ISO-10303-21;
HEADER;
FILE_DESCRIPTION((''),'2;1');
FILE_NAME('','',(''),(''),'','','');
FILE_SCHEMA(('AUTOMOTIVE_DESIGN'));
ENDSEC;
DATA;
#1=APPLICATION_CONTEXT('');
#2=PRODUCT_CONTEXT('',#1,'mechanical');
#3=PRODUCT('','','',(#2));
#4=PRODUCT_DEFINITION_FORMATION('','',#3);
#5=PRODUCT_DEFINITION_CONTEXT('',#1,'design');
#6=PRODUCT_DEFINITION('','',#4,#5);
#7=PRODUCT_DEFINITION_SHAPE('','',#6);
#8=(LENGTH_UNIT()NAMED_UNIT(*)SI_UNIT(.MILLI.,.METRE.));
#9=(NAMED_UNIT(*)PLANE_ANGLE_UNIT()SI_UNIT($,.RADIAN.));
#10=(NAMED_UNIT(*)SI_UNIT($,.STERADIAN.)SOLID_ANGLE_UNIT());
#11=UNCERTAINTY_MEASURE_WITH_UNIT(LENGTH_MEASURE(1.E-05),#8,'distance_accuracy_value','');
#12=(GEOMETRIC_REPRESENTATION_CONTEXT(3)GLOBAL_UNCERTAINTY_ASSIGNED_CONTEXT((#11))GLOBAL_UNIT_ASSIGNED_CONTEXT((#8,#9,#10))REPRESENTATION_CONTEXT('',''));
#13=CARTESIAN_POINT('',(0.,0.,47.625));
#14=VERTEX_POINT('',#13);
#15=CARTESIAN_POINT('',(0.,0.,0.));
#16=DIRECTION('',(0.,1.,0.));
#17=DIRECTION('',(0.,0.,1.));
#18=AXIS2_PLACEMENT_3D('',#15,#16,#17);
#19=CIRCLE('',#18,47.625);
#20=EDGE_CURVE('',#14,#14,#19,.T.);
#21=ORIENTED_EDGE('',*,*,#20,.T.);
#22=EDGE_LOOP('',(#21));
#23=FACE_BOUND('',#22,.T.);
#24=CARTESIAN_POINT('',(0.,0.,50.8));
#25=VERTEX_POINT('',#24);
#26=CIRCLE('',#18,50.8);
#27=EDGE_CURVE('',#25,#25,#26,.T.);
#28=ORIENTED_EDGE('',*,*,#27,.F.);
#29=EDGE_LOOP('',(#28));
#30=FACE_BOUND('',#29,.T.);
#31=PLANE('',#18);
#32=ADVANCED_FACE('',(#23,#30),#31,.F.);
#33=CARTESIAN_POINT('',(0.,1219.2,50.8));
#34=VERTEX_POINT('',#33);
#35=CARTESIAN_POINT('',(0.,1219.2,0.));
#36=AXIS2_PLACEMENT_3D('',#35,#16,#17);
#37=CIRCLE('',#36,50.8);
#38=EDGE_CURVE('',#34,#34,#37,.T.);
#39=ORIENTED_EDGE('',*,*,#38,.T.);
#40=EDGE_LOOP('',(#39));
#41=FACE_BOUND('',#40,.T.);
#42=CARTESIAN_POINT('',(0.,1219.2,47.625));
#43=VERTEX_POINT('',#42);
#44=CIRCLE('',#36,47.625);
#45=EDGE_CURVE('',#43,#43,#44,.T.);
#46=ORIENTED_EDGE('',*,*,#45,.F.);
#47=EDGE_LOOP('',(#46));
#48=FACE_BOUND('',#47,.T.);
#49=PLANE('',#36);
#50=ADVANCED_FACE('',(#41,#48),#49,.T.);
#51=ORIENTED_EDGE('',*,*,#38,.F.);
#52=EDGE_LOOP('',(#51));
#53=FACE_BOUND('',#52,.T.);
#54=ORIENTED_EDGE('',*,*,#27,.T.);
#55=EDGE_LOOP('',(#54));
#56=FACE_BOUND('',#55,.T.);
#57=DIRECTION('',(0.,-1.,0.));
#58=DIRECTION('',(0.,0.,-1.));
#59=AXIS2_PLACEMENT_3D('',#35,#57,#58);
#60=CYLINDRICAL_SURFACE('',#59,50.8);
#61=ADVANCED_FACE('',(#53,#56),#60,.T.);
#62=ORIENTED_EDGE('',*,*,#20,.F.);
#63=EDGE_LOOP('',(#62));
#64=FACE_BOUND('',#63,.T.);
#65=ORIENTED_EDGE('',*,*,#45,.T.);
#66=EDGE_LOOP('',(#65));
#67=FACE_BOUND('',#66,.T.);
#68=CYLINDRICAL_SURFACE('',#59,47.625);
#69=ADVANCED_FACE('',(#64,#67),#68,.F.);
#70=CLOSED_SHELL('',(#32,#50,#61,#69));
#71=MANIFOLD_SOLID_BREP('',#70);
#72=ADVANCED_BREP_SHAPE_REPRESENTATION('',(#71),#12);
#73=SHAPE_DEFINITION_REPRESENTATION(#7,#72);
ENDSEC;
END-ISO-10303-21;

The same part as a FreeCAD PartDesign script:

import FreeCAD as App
import Part
import Sketcher
from FreeCAD import Vector
Q = App.Units.Quantity

doc = App.newDocument("Part")
body = doc.addObject("PartDesign::Body", "Body")

# Sketch on XZ plane
sketch1 = body.newObject("Sketcher::SketchObject", "Sketch")
sketch1.AttachmentSupport = (doc.getObject("XZ_Plane"), [""])
sketch1.MapMode = "FlatFace"
sketch1.addGeometry([
    Part.Circle(Vector(0, 0, 0), Vector(0, 0, 1), 51),
    Part.Circle(Vector(0, 0, 0), Vector(0, 0, 1), 48),
], False)
sketch1.addConstraint([
    Sketcher.Constraint("Coincident", 0, 3, -1, 1),
    Sketcher.Constraint("Coincident", 1, 3, -1, 1),
    Sketcher.Constraint("Diameter", 0, Q("4 in")),
    Sketcher.Constraint("Diameter", 1, Q("3.75 in")),
])
pad1 = body.newObject("PartDesign::Pad", "Pad")
pad1.Profile = sketch1
pad1.Length = Q("48 in")
pad1.Reversed = True

doc.recompute()
